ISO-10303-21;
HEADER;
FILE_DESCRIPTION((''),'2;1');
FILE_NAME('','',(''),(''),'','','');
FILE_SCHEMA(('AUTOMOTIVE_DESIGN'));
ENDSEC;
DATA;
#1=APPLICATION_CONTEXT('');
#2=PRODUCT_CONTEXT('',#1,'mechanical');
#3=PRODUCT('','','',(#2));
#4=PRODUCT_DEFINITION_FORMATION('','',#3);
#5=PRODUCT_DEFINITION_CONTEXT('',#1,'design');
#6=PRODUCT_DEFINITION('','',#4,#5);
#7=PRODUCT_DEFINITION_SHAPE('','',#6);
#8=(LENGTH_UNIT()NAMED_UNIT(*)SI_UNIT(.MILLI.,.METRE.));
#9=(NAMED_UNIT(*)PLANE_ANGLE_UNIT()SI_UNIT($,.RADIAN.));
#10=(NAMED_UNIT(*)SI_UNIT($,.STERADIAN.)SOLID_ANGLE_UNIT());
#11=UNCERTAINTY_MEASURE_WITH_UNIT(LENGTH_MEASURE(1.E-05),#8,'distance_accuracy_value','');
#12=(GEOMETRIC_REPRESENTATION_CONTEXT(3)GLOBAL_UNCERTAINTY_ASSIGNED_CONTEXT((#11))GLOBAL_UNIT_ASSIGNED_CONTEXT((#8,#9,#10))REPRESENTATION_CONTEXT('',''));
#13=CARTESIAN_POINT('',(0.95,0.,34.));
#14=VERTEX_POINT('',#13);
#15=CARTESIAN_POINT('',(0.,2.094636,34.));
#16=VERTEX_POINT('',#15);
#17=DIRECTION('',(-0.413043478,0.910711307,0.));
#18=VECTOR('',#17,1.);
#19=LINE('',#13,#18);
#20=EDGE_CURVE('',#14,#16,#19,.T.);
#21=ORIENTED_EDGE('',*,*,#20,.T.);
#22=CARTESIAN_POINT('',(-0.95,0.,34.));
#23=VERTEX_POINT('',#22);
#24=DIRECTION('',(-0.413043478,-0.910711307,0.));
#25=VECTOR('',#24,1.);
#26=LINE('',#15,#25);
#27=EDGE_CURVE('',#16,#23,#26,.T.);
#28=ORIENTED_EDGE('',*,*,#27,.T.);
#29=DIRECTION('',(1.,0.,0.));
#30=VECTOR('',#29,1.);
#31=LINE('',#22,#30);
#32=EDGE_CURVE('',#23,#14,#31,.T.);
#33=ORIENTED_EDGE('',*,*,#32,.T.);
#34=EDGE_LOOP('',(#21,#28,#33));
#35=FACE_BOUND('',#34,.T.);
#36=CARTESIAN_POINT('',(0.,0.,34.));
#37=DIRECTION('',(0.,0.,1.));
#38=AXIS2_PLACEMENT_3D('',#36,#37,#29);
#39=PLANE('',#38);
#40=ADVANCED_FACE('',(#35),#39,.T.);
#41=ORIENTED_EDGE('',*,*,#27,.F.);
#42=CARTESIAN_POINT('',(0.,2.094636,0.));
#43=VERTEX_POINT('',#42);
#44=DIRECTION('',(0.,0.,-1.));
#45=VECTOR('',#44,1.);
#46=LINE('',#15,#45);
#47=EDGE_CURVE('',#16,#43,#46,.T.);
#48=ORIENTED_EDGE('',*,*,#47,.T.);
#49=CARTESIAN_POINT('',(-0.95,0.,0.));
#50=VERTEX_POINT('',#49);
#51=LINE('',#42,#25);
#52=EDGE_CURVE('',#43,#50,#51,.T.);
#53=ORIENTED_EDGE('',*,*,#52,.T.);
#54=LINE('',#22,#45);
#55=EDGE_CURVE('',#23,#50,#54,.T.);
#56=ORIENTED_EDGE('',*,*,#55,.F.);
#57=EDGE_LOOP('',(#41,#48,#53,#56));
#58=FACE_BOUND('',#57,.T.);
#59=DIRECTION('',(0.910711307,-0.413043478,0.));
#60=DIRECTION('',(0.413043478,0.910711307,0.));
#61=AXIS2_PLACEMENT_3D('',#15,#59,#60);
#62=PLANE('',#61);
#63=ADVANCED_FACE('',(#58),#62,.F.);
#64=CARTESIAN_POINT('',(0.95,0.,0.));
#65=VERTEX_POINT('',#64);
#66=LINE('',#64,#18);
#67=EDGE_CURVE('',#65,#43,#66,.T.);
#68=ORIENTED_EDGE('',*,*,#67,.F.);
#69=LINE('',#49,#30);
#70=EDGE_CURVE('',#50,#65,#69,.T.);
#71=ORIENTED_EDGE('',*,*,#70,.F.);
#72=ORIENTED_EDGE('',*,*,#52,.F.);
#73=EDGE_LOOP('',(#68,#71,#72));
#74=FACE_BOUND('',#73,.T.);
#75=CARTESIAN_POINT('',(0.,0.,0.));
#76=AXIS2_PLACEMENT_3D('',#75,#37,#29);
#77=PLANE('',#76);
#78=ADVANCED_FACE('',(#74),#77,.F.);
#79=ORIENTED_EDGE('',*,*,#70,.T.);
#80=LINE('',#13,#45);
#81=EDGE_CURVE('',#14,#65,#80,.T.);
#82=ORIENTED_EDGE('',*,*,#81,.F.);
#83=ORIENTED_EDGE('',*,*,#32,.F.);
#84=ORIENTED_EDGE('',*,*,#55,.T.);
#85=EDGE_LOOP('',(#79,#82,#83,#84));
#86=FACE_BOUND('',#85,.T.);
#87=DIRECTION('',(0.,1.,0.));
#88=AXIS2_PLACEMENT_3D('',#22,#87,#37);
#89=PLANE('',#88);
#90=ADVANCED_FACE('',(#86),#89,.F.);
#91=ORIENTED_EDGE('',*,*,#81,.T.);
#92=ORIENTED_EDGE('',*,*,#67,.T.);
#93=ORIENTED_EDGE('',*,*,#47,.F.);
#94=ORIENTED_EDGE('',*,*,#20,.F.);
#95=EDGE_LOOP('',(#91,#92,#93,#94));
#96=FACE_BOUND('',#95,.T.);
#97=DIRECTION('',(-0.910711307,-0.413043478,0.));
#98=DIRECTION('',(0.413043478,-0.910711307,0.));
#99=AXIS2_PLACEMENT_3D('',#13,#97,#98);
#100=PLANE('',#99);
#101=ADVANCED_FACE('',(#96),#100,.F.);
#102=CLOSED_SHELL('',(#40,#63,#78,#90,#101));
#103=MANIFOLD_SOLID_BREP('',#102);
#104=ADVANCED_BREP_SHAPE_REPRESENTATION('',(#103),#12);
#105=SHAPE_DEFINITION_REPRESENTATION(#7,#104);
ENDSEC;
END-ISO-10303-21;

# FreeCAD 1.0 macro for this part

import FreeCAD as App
import Part
import Sketcher
Q = App.Units.Quantity

doc = App.newDocument("Part")
body = doc.addObject("PartDesign::Body", "Body")

# Sketch on XY plane
sketch1 = body.newObject("Sketcher::SketchObject", "Sketch")
sketch1.AttachmentSupport = (doc.getObject("XY_Plane"), [""])
sketch1.MapMode = "FlatFace"
sketch1.addGeometry([
    Part.LineSegment(App.Vector(-0.95, 0, 0), App.Vector(0.95, 0, 0)),
    Part.LineSegment(App.Vector(0.95, 0, 0), App.Vector(0, 2.094636, 0)),
    Part.LineSegment(App.Vector(0, 2.094636, 0), App.Vector(-0.95, 0, 0)),
], False)
sketch1.addConstraint([
    Sketcher.Constraint("Coincident", 0, 2, 1, 1),
    Sketcher.Constraint("Coincident", 1, 2, 2, 1),
    Sketcher.Constraint("Coincident", 2, 2, 0, 1),
    Sketcher.Constraint("Horizontal", 0),
    Sketcher.Constraint("Symmetric", 0, 2, 2, 2, -1, 1),
    Sketcher.Constraint("PointOnObject", 1, 2, -2),
    Sketcher.Constraint("DistanceX", 0, 1, 0, 2, Q("1.9 mm")),
    Sketcher.Constraint("Distance", 1, Q("2.3 mm")),
])
pad1 = body.newObject("PartDesign::Pad", "Pad")
pad1.Profile = sketch1
pad1.Length = 34

doc.recompute()
